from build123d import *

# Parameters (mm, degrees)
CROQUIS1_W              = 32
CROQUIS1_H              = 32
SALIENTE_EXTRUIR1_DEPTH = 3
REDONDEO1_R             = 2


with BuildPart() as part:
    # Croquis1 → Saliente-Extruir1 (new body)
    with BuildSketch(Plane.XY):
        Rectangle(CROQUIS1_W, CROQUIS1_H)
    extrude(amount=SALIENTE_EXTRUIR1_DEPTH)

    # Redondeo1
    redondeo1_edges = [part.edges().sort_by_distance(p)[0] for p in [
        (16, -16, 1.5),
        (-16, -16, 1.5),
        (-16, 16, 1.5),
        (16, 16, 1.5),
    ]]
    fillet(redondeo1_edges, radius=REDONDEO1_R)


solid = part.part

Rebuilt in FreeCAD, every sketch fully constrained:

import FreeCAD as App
import Part
import Sketcher
from FreeCAD import Vector


def edges_at(feature, points):
    """Names of the edges that pass closest to the given points."""
    edges = feature.Shape.Edges
    near = lambda p: min(range(len(edges)), key=lambda i: edges[i].distToShape(Part.Vertex(*p))[0])
    return sorted({f"Edge{near(p) + 1}" for p in points})

doc = App.newDocument("Part")
body = doc.addObject("PartDesign::Body", "Body")

# Sketch on XY plane
sketch1 = body.newObject("Sketcher::SketchObject", "Sketch")
sketch1.AttachmentSupport = (doc.getObject("XY_Plane"), [""])
sketch1.MapMode = "FlatFace"
sketch1.addGeometry([
    Part.LineSegment(Vector(-16, 16, 0), Vector(-16, -16, 0)),
    Part.LineSegment(Vector(-16, -16, 0), Vector(16, -16, 0)),
    Part.LineSegment(Vector(16, -16, 0), Vector(16, 16, 0)),
    Part.LineSegment(Vector(16, 16, 0), Vector(-16, 16, 0)),
], False)
sketch1.addConstraint([
    Sketcher.Constraint("Coincident", 0, 2, 1, 1),
    Sketcher.Constraint("Coincident", 1, 2, 2, 1),
    Sketcher.Constraint("Coincident", 2, 2, 3, 1),
    Sketcher.Constraint("Coincident", 3, 2, 0, 1),
    Sketcher.Constraint("Vertical", 0),
    Sketcher.Constraint("Horizontal", 1),
    Sketcher.Constraint("Vertical", 2),
    Sketcher.Constraint("Horizontal", 3),
    Sketcher.Constraint("Symmetric", 0, 2, 2, 2, -1, 1),
    Sketcher.Constraint("Equal", 3, 0),
    Sketcher.Constraint("DistanceX", 1, 1, 1, 2, 32.0),
])
pad1 = body.newObject("PartDesign::Pad", "Pad")
pad1.Profile = sketch1
pad1.Length = 3
doc.recompute()

fillet = body.newObject("PartDesign::Fillet", "Fillet")
fillet.Base = (pad1, edges_at(pad1, [
    (16, -16, 1.5),
    (-16, -16, 1.5),
    (-16, 16, 1.5),
    (16, 16, 1.5),
]))
fillet.Radius = 2

doc.recompute()
